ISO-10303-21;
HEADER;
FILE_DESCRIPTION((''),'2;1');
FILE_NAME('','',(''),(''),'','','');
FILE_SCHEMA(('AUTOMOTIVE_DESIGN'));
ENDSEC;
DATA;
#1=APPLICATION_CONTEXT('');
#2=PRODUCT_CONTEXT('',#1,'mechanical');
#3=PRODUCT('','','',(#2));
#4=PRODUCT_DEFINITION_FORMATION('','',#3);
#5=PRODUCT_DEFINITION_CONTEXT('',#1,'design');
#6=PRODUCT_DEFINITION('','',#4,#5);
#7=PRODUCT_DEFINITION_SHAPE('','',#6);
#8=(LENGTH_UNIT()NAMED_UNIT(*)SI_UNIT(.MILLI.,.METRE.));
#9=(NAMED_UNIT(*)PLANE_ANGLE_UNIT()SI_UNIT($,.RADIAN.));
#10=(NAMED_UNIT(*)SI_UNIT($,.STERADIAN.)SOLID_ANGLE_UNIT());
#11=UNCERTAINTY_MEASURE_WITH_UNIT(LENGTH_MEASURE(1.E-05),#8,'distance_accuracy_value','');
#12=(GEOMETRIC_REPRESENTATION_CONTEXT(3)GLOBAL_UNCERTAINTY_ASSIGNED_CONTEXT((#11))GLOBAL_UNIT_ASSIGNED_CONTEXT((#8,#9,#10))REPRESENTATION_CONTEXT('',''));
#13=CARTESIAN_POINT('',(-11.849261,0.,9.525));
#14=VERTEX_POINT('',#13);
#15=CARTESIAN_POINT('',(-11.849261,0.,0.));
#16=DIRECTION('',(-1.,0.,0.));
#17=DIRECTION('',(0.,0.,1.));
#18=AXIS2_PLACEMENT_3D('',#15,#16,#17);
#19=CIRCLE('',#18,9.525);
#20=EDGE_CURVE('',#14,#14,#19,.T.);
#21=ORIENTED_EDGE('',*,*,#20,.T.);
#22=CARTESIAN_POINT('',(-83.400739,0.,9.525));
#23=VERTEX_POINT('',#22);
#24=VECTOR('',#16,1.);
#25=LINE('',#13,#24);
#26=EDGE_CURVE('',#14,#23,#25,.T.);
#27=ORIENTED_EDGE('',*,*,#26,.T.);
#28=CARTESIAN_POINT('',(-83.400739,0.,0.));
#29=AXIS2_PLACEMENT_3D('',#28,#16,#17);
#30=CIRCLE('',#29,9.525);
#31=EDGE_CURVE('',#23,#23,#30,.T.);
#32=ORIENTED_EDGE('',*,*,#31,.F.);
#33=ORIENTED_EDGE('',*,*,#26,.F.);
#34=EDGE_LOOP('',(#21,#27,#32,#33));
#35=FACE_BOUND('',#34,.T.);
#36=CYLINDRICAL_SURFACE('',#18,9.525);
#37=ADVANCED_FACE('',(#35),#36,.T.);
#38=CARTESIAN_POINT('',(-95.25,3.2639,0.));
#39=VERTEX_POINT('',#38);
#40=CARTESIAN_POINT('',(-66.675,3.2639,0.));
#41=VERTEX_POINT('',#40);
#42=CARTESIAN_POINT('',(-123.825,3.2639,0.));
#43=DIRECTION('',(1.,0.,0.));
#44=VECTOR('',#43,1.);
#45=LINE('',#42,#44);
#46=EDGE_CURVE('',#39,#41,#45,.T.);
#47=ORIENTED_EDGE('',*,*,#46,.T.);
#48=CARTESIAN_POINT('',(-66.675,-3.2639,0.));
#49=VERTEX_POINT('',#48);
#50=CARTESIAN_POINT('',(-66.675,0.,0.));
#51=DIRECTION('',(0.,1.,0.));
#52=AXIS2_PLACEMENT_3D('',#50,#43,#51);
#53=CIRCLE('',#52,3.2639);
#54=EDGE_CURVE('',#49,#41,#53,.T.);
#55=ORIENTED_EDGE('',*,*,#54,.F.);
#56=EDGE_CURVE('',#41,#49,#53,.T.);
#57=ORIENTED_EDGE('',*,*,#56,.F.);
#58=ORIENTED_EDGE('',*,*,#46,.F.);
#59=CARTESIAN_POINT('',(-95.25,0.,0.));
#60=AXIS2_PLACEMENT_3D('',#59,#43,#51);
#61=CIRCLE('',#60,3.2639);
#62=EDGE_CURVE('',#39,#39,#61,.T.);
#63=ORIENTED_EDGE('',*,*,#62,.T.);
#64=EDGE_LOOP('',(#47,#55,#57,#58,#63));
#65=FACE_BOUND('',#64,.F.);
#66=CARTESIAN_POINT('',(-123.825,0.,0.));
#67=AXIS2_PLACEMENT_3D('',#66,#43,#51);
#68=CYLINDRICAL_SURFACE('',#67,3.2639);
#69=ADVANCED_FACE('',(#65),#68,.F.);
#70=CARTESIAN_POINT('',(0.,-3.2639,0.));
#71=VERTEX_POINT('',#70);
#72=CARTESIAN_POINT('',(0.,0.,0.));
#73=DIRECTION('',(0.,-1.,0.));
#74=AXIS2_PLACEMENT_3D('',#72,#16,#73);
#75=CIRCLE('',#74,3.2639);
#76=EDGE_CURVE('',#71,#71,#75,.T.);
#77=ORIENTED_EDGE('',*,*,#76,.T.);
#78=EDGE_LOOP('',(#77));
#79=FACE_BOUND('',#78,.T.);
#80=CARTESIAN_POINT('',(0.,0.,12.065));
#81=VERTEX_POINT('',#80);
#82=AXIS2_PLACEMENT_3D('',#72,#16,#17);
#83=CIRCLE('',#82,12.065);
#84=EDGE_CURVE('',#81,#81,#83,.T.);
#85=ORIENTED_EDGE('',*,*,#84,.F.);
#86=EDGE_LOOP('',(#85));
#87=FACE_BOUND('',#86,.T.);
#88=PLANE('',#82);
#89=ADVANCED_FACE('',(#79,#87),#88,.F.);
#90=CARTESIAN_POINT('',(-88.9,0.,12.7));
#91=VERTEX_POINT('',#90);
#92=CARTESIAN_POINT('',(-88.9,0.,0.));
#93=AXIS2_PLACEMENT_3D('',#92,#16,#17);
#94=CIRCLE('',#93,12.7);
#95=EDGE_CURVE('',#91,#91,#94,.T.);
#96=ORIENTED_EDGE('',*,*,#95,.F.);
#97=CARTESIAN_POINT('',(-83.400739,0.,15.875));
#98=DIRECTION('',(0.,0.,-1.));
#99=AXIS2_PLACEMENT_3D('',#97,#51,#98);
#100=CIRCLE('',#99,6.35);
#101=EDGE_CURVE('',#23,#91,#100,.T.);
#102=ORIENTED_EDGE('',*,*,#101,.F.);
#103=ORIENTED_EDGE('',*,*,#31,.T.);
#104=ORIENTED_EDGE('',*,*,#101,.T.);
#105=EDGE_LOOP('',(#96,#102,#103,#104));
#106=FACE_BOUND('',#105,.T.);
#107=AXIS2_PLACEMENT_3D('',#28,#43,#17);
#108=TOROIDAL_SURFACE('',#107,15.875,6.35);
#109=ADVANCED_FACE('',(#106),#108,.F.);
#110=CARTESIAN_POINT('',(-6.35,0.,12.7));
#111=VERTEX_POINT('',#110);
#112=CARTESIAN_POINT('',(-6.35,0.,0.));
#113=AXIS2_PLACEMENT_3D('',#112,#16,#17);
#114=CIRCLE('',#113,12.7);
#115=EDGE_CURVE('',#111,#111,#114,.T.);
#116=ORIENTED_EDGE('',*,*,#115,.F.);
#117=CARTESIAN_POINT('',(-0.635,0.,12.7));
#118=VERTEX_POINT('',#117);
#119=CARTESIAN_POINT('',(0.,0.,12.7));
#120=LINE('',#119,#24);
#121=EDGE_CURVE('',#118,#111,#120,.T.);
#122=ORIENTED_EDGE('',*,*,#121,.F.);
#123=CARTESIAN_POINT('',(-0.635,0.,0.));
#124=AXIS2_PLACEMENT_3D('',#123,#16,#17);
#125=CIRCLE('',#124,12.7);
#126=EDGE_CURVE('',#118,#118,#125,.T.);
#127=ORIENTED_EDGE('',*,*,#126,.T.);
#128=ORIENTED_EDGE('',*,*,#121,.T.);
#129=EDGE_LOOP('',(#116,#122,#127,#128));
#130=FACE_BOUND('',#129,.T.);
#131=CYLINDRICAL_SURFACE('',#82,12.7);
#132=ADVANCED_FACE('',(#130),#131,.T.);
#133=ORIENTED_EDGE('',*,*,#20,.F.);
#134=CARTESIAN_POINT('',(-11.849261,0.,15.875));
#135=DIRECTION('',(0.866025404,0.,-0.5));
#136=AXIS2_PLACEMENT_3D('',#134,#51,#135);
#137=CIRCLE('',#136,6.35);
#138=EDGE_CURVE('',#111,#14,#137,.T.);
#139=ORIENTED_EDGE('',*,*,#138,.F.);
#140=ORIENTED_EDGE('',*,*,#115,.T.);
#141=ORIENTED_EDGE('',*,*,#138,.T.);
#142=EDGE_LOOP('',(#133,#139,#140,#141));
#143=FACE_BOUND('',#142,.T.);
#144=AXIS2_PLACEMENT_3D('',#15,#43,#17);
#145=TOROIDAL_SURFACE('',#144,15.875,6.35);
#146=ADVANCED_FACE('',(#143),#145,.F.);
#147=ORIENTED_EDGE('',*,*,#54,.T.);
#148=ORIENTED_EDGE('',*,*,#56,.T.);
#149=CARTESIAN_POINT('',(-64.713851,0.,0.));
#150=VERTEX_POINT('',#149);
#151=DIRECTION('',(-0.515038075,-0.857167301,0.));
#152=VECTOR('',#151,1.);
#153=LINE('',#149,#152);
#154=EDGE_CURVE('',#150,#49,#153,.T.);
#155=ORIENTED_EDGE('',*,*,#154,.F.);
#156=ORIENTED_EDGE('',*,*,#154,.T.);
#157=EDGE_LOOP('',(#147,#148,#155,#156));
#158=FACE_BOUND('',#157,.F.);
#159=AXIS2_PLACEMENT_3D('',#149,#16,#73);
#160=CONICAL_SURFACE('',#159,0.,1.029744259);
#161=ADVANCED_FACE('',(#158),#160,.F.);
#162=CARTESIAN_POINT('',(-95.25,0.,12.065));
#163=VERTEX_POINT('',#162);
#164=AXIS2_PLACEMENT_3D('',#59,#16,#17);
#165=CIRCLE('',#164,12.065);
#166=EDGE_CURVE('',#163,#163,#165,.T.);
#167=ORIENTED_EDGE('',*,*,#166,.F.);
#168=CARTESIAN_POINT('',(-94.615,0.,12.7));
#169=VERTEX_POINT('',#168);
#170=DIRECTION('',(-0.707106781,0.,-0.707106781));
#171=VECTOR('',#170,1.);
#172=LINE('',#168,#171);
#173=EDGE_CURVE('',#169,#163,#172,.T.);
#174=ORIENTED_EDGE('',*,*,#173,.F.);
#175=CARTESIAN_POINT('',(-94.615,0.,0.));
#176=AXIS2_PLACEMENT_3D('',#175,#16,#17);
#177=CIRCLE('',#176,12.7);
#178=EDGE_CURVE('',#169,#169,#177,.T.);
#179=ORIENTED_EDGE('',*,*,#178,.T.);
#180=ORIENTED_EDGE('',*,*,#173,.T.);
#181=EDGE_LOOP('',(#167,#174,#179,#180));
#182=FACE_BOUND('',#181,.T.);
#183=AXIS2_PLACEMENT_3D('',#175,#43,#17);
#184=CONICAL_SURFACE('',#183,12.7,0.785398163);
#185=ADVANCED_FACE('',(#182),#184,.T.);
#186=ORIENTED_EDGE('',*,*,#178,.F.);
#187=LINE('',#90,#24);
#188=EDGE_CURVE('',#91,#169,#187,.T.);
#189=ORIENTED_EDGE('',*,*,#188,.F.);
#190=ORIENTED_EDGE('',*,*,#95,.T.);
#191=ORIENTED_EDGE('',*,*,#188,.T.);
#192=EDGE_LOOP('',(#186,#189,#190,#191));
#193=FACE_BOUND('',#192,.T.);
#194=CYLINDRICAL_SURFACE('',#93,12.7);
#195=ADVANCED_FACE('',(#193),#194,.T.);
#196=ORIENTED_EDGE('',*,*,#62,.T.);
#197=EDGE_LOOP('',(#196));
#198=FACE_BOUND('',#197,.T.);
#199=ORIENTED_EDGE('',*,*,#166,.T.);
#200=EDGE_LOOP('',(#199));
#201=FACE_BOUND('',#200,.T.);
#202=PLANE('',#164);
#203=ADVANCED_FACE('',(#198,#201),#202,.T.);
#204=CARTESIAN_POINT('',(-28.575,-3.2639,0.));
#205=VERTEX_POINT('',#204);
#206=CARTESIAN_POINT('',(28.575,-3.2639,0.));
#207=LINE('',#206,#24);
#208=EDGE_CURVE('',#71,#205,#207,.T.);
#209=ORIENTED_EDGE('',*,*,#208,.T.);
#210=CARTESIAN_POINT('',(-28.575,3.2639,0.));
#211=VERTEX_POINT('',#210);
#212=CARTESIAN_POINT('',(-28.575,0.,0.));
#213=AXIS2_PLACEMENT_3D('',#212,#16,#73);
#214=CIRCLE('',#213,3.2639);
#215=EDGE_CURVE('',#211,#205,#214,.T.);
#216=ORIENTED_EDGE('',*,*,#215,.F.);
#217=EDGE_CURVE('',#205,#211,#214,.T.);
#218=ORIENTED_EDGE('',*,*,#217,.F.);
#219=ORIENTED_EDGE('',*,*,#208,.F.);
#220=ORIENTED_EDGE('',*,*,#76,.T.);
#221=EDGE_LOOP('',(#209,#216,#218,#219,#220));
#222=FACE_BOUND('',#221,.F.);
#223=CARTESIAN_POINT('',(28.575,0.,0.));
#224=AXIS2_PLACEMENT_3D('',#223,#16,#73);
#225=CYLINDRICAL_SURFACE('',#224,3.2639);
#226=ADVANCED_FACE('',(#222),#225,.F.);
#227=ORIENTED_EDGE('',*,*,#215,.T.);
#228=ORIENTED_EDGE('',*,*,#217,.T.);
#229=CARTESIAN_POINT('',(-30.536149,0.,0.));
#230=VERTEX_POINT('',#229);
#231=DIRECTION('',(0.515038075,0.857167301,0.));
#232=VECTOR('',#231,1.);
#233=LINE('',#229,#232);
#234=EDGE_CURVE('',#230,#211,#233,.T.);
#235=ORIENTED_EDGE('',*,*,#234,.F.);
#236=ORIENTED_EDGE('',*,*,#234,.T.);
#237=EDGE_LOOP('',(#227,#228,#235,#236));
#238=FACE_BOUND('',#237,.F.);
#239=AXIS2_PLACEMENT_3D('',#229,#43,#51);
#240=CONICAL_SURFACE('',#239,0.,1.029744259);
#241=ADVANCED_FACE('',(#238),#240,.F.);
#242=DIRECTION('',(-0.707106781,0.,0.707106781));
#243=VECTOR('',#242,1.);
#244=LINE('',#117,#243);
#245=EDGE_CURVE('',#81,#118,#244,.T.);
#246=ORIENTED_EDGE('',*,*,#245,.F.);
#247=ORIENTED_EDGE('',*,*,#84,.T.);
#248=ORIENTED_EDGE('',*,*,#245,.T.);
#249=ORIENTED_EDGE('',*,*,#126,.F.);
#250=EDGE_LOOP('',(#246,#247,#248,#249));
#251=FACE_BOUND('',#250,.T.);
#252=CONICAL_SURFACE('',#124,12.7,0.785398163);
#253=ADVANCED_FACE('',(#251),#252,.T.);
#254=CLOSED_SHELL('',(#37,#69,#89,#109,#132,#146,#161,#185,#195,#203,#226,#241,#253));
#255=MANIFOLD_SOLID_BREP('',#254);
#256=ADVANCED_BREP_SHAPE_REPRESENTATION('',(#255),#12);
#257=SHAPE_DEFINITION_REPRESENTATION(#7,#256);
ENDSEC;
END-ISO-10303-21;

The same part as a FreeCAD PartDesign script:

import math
import FreeCAD as App
import Part
import Sketcher
from FreeCAD import Vector
Q = App.Units.Quantity


def edges_at(feature, points):
    """Names of the edges that pass closest to the given points."""
    edges = feature.Shape.Edges
    near = lambda p: min(range(len(edges)), key=lambda i: edges[i].distToShape(Part.Vertex(*p))[0])
    return sorted({f"Edge{near(p) + 1}" for p in points})

doc = App.newDocument("Part")
params = doc.addObject("Spreadsheet::Sheet", "Params")
for row, (alias, value) in enumerate([
    ("sketch1_radius", "0.25 in"),
    ("sketch1_height", "0.5 in"),
    ("sketch1_width", "3.75 in"),
    ("sketch1_width2", "0.25 in"),
    ("revolution_angle", "360 deg"),
    ("sketch2_diameter", "0.257 in"),
    ("hole_diameter", "0.257 in"),
    ("hole_depth", "1.125 in"),
    ("sketch3_diameter", "0.257 in"),
    ("hole2_diameter", "0.257 in"),
    ("hole2_depth", "1.125 in"),
    ("chamfer_size", "0.025 in"),
], start=1):
    params.set(f"A{row}", alias)
    params.set(f"B{row}", "=" + value)
    params.setAlias(f"B{row}", alias)

body = doc.addObject("PartDesign::Body", "Body")

# Sketch on XZ plane
sketch1 = body.newObject("Sketcher::SketchObject", "Sketch")
sketch1.AttachmentSupport = (doc.getObject("XZ_Plane"), [""])
sketch1.MapMode = "FlatFace"
sketch1.addGeometry(Part.LineSegment(Vector(-95.25, 0, 0), Vector(0, 0, 0)), False)
sketch1.addGeometry(Part.LineSegment(Vector(0, 0, 0), Vector(0, 12.7, 0)), False)
sketch1.addGeometry(Part.LineSegment(Vector(0, 12.7, 0), Vector(-6.35, 12.7, 0)), False)
sketch1.addGeometry(Part.ArcOfCircle(Part.Circle(Vector(-11.849261, 15.875, 0), Vector(0, 0, 1), 6.35), math.radians(-90), math.radians(-30)), False)
sketch1.addGeometry(Part.LineSegment(Vector(-11.849261, 9.525, 0), Vector(-83.400739, 9.525, 0)), False)
sketch1.addGeometry(Part.ArcOfCircle(Part.Circle(Vector(-83.400739, 15.875, 0), Vector(0, 0, 1), 6.35), math.radians(-150), math.radians(-90)), False)
sketch1.addGeometry(Part.LineSegment(Vector(-88.9, 12.7, 0), Vector(-95.25, 12.7, 0)), False)
sketch1.addGeometry(Part.LineSegment(Vector(-95.25, 12.7, 0), Vector(-95.25, 0, 0)), False)
sketch1.addConstraint(Sketcher.Constraint("Coincident", 0, 2, 1, 1))
sketch1.addConstraint(Sketcher.Constraint("Coincident", 1, 2, 2, 1))
sketch1.addConstraint(Sketcher.Constraint("Coincident", 2, 2, 3, 2))
sketch1.addConstraint(Sketcher.Constraint("Tangent", 3, 1, 4, 1))
sketch1.addConstraint(Sketcher.Constraint("Tangent", 4, 2, 5, 2))
sketch1.addConstraint(Sketcher.Constraint("Coincident", 5, 1, 6, 1))
sketch1.addConstraint(Sketcher.Constraint("Coincident", 6, 2, 7, 1))
sketch1.addConstraint(Sketcher.Constraint("Coincident", 7, 2, 0, 1))
sketch1.addConstraint(Sketcher.Constraint("Horizontal", 0))
sketch1.addConstraint(Sketcher.Constraint("Vertical", 1))
sketch1.addConstraint(Sketcher.Constraint("Horizontal", 2))
sketch1.addConstraint(Sketcher.Constraint("Horizontal", 4))
sketch1.addConstraint(Sketcher.Constraint("Horizontal", 6))
sketch1.addConstraint(Sketcher.Constraint("Vertical", 7))
sketch1.addConstraint(Sketcher.Constraint("Coincident", 0, 2, -1, 1))
sketch1.addConstraint(Sketcher.Constraint("Equal", 3, 5))
sketch1.addConstraint(Sketcher.Constraint("Horizontal", 2, 2, 5, 1))
sketch1.addConstraint(Sketcher.Constraint("Equal", 2, 6))
sketch1.addConstraint(Sketcher.Constraint("Radius", 3, Q("0.25 in")))
sketch1.addConstraint(Sketcher.Constraint("DistanceY", 1, 1, 1, 2, Q("0.5 in")))
sketch1.addConstraint(Sketcher.Constraint("DistanceX", 0, 1, 0, 2, Q("3.75 in")))
sketch1.addConstraint(Sketcher.Constraint("DistanceX", 2, 2, 2, 1, Q("0.25 in")))
sketch1.addConstraint(Sketcher.Constraint("DistanceY", -1, 1, 3, 3, Q("0.625 in")))
sketch1.setExpression("Constraints[18]", "Params.sketch1_radius")
sketch1.setExpression("Constraints[19]", "Params.sketch1_height")
sketch1.setExpression("Constraints[20]", "Params.sketch1_width")
sketch1.setExpression("Constraints[21]", "Params.sketch1_width2")
revolution = body.newObject("PartDesign::Revolution", "Revolution")
revolution.Profile = sketch1
revolution.ReferenceAxis = (sketch1, ["H_Axis"])
revolution.setExpression("Angle", "Params.revolution_angle")

# Sketch on YZ plane
sketch2 = body.newObject("Sketcher::SketchObject", "Sketch001")
sketch2.AttachmentSupport = (doc.getObject("YZ_Plane"), [""])
sketch2.MapMode = "FlatFace"
sketch2.addGeometry(Part.Circle(Vector(0, 0, 0), Vector(0, 0, 1), 3.2639), False)
sketch2.addConstraint(Sketcher.Constraint("Coincident", 0, 3, -1, 1))
sketch2.addConstraint(Sketcher.Constraint("Diameter", 0, Q("0.257 in")))
sketch2.setExpression("Constraints[1]", "Params.sketch2_diameter")
doc.recompute()
hole = body.newObject("PartDesign::Hole", "Hole")
hole.Profile = sketch2
hole.ThreadType = "None"
hole.setExpression("Diameter", "Params.hole_diameter")
hole.DepthType = "Dimension"
hole.setExpression("Depth", "Params.hole_depth")
hole.DrillPoint = "Angled"
hole.DrillPointAngle = 118

# Sketch on YZ plane
sketch3 = body.newObject("Sketcher::SketchObject", "Sketch002")
sketch3.AttachmentSupport = (doc.getObject("YZ_Plane"), [""])
sketch3.MapMode = "FlatFace"
sketch3.AttachmentOffset = App.Placement(Vector(0, 0, -3.75 * 25.4), App.Rotation())
sketch3.addGeometry(Part.Circle(Vector(0, 0, 0), Vector(0, 0, 1), 3.2639), False)
sketch3.addConstraint(Sketcher.Constraint("Coincident", 0, 3, -1, 1))
sketch3.addConstraint(Sketcher.Constraint("Diameter", 0, Q("0.257 in")))
sketch3.setExpression("Constraints[1]", "Params.sketch3_diameter")
doc.recompute()
hole2 = body.newObject("PartDesign::Hole", "Hole001")
hole2.Profile = sketch3
hole2.ThreadType = "None"
hole2.setExpression("Diameter", "Params.hole2_diameter")
hole2.DepthType = "Dimension"
hole2.setExpression("Depth", "Params.hole2_depth")
hole2.DrillPoint = "Angled"
hole2.DrillPointAngle = 118
hole2.Reversed = True
doc.recompute()

chamfer = body.newObject("PartDesign::Chamfer", "Chamfer")
chamfer.Base = (hole2, edges_at(hole2, [(0, 0, -12.7), (-95.25, 0, -12.7)]))
chamfer.setExpression("Size", "Params.chamfer_size")

doc.recompute()
